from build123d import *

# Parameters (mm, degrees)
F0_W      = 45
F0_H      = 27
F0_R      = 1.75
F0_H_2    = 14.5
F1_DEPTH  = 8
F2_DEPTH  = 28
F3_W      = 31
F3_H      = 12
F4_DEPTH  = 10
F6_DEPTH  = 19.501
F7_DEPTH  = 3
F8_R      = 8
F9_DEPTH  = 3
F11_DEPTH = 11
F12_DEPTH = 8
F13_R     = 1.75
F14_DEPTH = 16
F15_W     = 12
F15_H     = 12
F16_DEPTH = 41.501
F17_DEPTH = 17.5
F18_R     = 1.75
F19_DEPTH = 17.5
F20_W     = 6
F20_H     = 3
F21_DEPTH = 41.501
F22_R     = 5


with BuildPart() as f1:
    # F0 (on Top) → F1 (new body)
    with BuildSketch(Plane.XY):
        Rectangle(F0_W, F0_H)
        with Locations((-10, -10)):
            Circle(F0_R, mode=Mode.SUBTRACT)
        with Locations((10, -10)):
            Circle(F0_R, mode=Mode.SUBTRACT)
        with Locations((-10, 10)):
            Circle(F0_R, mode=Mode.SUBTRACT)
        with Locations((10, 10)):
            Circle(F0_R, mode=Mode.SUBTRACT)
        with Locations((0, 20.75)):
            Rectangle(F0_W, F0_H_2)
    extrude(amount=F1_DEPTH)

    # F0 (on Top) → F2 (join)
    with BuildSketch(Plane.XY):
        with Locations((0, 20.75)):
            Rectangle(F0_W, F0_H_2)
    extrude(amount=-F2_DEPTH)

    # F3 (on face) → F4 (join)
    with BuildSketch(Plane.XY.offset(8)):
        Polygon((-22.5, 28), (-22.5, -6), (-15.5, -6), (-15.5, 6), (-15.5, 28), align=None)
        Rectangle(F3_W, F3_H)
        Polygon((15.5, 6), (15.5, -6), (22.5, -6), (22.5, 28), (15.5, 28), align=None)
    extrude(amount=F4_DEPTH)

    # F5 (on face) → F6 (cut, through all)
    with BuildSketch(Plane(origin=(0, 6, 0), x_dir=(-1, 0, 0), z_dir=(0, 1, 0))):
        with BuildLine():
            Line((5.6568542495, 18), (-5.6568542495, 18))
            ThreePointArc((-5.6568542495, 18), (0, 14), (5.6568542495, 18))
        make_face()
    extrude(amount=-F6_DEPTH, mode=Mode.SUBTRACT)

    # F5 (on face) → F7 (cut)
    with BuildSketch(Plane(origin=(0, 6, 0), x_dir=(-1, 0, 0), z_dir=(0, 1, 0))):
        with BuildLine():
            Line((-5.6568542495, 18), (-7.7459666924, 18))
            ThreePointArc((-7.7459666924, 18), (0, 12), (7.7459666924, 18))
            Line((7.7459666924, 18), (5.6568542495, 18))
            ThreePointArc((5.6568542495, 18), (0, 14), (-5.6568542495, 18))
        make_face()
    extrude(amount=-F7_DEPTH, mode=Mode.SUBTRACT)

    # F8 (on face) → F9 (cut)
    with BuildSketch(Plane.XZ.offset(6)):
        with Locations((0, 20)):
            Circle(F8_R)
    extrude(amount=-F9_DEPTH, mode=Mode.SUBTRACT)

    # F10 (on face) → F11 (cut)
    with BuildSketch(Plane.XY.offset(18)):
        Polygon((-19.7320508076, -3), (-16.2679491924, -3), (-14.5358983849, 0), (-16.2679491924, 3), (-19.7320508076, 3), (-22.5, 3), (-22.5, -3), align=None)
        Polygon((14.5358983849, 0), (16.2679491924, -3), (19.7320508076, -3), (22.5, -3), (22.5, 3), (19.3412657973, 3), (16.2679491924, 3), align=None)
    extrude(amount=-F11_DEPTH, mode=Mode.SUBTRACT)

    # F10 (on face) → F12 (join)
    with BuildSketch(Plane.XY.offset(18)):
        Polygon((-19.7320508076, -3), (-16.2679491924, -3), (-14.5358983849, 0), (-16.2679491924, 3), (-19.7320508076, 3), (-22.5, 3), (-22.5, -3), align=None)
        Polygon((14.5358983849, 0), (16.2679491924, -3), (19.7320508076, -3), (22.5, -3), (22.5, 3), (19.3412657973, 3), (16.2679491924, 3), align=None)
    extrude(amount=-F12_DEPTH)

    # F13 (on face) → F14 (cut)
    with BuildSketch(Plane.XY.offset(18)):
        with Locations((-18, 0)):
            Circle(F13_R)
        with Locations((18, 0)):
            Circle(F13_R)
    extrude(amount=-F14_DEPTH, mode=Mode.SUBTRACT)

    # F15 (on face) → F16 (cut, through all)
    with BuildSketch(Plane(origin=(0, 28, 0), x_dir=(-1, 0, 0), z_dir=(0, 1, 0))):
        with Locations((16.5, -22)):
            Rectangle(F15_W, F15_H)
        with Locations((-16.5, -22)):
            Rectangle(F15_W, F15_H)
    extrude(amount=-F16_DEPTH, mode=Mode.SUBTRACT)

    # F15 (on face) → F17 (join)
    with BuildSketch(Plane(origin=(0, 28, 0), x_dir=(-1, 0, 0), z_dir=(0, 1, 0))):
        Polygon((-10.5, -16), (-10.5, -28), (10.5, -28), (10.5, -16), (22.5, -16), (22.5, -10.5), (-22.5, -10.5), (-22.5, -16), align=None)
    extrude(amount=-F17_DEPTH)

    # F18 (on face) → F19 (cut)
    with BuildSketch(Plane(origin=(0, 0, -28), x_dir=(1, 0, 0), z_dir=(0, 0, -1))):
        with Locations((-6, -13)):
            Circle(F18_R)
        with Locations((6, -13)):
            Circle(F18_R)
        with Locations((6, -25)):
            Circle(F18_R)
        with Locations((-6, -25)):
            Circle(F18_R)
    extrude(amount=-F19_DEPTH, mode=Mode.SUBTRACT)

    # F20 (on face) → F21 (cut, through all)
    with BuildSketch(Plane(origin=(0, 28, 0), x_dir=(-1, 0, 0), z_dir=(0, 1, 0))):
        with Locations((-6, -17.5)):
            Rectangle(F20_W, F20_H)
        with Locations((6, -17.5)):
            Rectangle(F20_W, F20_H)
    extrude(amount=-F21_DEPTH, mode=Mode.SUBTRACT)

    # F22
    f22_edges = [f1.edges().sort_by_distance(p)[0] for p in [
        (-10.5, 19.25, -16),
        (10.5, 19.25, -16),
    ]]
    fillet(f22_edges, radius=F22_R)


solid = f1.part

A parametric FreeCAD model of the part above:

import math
import FreeCAD as App
import Part
import Sketcher

V = App.Vector
Q = App.Units.Quantity


def edges_at(feature, points):
    """Names of the edges that pass closest to the given points."""
    edges = feature.Shape.Edges
    near = lambda p: min(range(len(edges)), key=lambda i: edges[i].distToShape(Part.Vertex(*p))[0])
    return sorted({f"Edge{near(p) + 1}" for p in points})


def add_polygon(sketch, points):
    """Adds a closed chain of lines whose ends are joined by coincident constraints."""
    first, n = sketch.GeometryCount, len(points)
    for a, b in zip(points, points[1:] + points[:1]):
        sketch.addGeometry(Part.LineSegment(App.Vector(*a, 0), App.Vector(*b, 0)), False)
    for i in range(n):
        sketch.addConstraint(Sketcher.Constraint("Coincident", first + i, 2, first + (i + 1) % n, 1))

doc = App.newDocument("Part")
params = doc.addObject("Spreadsheet::Sheet", "Params")
for row, (alias, value) in enumerate([
    ("sketch1_diameter", "3.5 mm"),
    ("sketch1_width", "45 mm"),
    ("sketch1_height", "41.5 mm"),
    ("pad1_length", "8 mm"),
    ("sketch2_width", "45 mm"),
    ("sketch2_height", "14.5 mm"),
    ("pad2_length", "28 mm"),
    ("sketch3_width", "45 mm"),
    ("sketch3_width2", "7 mm"),
    ("sketch3_height", "34 mm"),
    ("sketch3_height2", "22 mm"),
    ("pad3_length", "10 mm"),
    ("sketch4_radius", "6 mm"),
    ("sketch5_radius", "8 mm"),
    ("sketch5_radius2", "6 mm"),
    ("pocket2_length", "3 mm"),
    ("sketch6_diameter", "16 mm"),
    ("pocket3_length", "3 mm"),
    ("sketch7_height", "6 mm"),
    ("pocket4_length", "11 mm"),
    ("sketch8_height", "6 mm"),
    ("pad4_length", "8 mm"),
    ("sketch9_diameter", "3.5 mm"),
    ("pocket5_length", "16 mm"),
    ("sketch10_width", "12 mm"),
    ("sketch11_width", "21 mm"),
    ("sketch11_width2", "12 mm"),
    ("sketch11_height", "5.5 mm"),
    ("pad5_length", "17.5 mm"),
    ("sketch12_diameter", "3.5 mm"),
    ("pocket7_length", "17.5 mm"),
    ("sketch13_width", "6 mm"),
    ("sketch13_height", "3 mm"),
    ("fillet_radius", "5 mm"),
], start=1):
    params.set(f"A{row}", alias)
    params.set(f"B{row}", "=" + value)
    params.setAlias(f"B{row}", alias)

body = doc.addObject("PartDesign::Body", "Body")

sketch1 = doc.addObject("Sketcher::SketchObject", "Sketch")
body.addObject(sketch1)
sketch1.AttachmentSupport = (doc.XY_Plane, [""])
sketch1.MapMode = "FlatFace"
add_polygon(sketch1, [(-22.5, -13.5), (22.5, -13.5), (22.5, 28), (-22.5, 28)])
sketch1.addGeometry(Part.Circle(V(-10, -10, 0), V(0, 0, 1), 1.8), False)
sketch1.addGeometry(Part.Circle(V(10, -10, 0), V(0, 0, 1), 1.8), False)
sketch1.addGeometry(Part.Circle(V(-10, 10, 0), V(0, 0, 1), 1.8), False)
sketch1.addGeometry(Part.Circle(V(10, 10, 0), V(0, 0, 1), 1.8), False)
sketch1.addConstraint([
    Sketcher.Constraint("Horizontal", 0),
    Sketcher.Constraint("Vertical", 1),
    Sketcher.Constraint("Horizontal", 2),
    Sketcher.Constraint("Vertical", 3),
    Sketcher.Constraint("Equal", 4, 5),
    Sketcher.Constraint("Equal", 5, 6),
    Sketcher.Constraint("Equal", 6, 7),
    Sketcher.Constraint("Symmetric", 5, 3, 6, 3, -1, 1),
    Sketcher.Constraint("Symmetric", 4, 3, 7, 3, -1, 1),
    Sketcher.Constraint("Symmetric", 4, 3, 5, 3, -2),
    Sketcher.Constraint("Diameter", 4, 3.5),
    Sketcher.Constraint("DistanceX", 0, 1, 0, 2, 45.0),
    Sketcher.Constraint("DistanceY", 1, 1, 1, 2, 41.5),
    Sketcher.Constraint("DistanceX", 4, 3, -1, 1, 10.0),
    Sketcher.Constraint("DistanceY", 4, 3, -1, 1, 10.0),
    Sketcher.Constraint("DistanceY", -1, 1, 1, 2, 28.0),
    Sketcher.Constraint("DistanceX", -1, 1, 0, 2, 22.5),
])
sketch1.setExpression("Constraints[14]", "Params.sketch1_diameter")
sketch1.setExpression("Constraints[15]", "Params.sketch1_width")
sketch1.setExpression("Constraints[16]", "Params.sketch1_height")
pad1 = doc.addObject("PartDesign::Pad", "Pad")
body.addObject(pad1)
pad1.Profile = sketch1
pad1.setExpression("Length", "Params.pad1_length")

sketch2 = doc.addObject("Sketcher::SketchObject", "Sketch001")
body.addObject(sketch2)
sketch2.AttachmentSupport = (doc.XY_Plane, [""])
sketch2.MapMode = "FlatFace"
add_polygon(sketch2, [(-22, 28), (-22, 14), (22, 14), (22, 28)])
sketch2.addConstraint([
    Sketcher.Constraint("Vertical", 0),
    Sketcher.Constraint("Horizontal", 1),
    Sketcher.Constraint("Vertical", 2),
    Sketcher.Constraint("Horizontal", 3),
    Sketcher.Constraint("DistanceX", 1, 1, 1, 2, 45.0),
    Sketcher.Constraint("DistanceY", 0, 2, 0, 1, 14.5),
    Sketcher.Constraint("DistanceY", -1, 1, 2, 2, 28.0),
    Sketcher.Constraint("DistanceX", 0, 2, -1, 1, 22.5),
])
sketch2.setExpression("Constraints[8]", "Params.sketch2_width")
sketch2.setExpression("Constraints[9]", "Params.sketch2_height")
pad2 = doc.addObject("PartDesign::Pad", "Pad001")
body.addObject(pad2)
pad2.Profile = sketch2
pad2.setExpression("Length", "Params.pad2_length")
pad2.Reversed = True

sketch3 = doc.addObject("Sketcher::SketchObject", "Sketch002")
body.addObject(sketch3)
sketch3.AttachmentSupport = (doc.XY_Plane, [""])
sketch3.MapMode = "FlatFace"
sketch3.AttachmentOffset = App.Placement(V(0, 0, 8), App.Rotation())
add_polygon(sketch3, [(-22, 28), (-22, -6), (22, -6), (22, 28), (16, 28), (16, 6), (-16, 6), (-16, 28)])
sketch3.addConstraint([
    Sketcher.Constraint("Vertical", 0),
    Sketcher.Constraint("Horizontal", 1),
    Sketcher.Constraint("Vertical", 2),
    Sketcher.Constraint("Horizontal", 3),
    Sketcher.Constraint("Vertical", 4),
    Sketcher.Constraint("Horizontal", 5),
    Sketcher.Constraint("Vertical", 6),
    Sketcher.Constraint("Horizontal", 7),
    Sketcher.Constraint("Symmetric", 3, 2, 6, 2, -2),
    Sketcher.Constraint("Equal", 3, 7),
    Sketcher.Constraint("DistanceX", 1, 1, 1, 2, 45.0),
    Sketcher.Constraint("DistanceX", 3, 2, 3, 1, 7.0),
    Sketcher.Constraint("DistanceY", 0, 2, 0, 1, 34.0),
    Sketcher.Constraint("DistanceY", 4, 2, 4, 1, 22.0),
    Sketcher.Constraint("DistanceY", 0, 2, -1, 1, 6.0),
])
sketch3.setExpression("Constraints[18]", "Params.sketch3_width")
sketch3.setExpression("Constraints[19]", "Params.sketch3_width2")
sketch3.setExpression("Constraints[20]", "Params.sketch3_height")
sketch3.setExpression("Constraints[21]", "Params.sketch3_height2")
pad3 = doc.addObject("PartDesign::Pad", "Pad002")
body.addObject(pad3)
pad3.Profile = sketch3
pad3.setExpression("Length", "Params.pad3_length")

sketch4 = doc.addObject("Sketcher::SketchObject", "Sketch003")
body.addObject(sketch4)
sketch4.AttachmentSupport = (doc.XZ_Plane, [""])
sketch4.MapMode = "FlatFace"
sketch4.AttachmentOffset = App.Placement(V(0, 0, -6), App.Rotation())
sketch4.addGeometry([
    Part.LineSegment(V(-6, 18, 0), V(6, 18, 0)),
    Part.ArcOfCircle(Part.Circle(V(0, 20, 0), V(0, 0, 1), 6), math.radians(-161), math.radians(-19)),
], False)
sketch4.addConstraint([
    Sketcher.Constraint("Coincident", 0, 1, 1, 1),
    Sketcher.Constraint("Coincident", 1, 2, 0, 2),
    Sketcher.Constraint("Horizontal", 0),
    Sketcher.Constraint("PointOnObject", 1, 3, -2),
    Sketcher.Constraint("Radius", 1, 6.0),
    Sketcher.Constraint("DistanceY", -1, 1, 1, 3, 20.0),
    Sketcher.Constraint("DistanceY", -1, 1, 0, 1, 18.0),
])
sketch4.setExpression("Constraints[4]", "Params.sketch4_radius")
pocket1 = doc.addObject("PartDesign::Pocket", "Pocket")
body.addObject(pocket1)
pocket1.Profile = sketch4
pocket1.Type = "ThroughAll"
pocket1.Reversed = True

sketch5 = doc.addObject("Sketcher::SketchObject", "Sketch004")
body.addObject(sketch5)
sketch5.AttachmentSupport = (doc.XZ_Plane, [""])
sketch5.MapMode = "FlatFace"
sketch5.AttachmentOffset = App.Placement(V(0, 0, -6), App.Rotation())
sketch5.addGeometry([
    Part.LineSegment(V(5.7, 18, 0), V(7.7, 18, 0)),
    Part.ArcOfCircle(Part.Circle(V(0, 20, 0), V(0, 0, 1), 8), math.radians(-166), math.radians(-14)),
    Part.LineSegment(V(-7.7, 18, 0), V(-5.7, 18, 0)),
    Part.ArcOfCircle(Part.Circle(V(0, 20, 0), V(0, 0, 1), 6), math.radians(-161), math.radians(-19)),
], False)
sketch5.addConstraint([
    Sketcher.Constraint("Coincident", 0, 2, 1, 2),
    Sketcher.Constraint("Coincident", 1, 1, 2, 1),
    Sketcher.Constraint("Coincident", 2, 2, 3, 1),
    Sketcher.Constraint("Coincident", 3, 2, 0, 1),
    Sketcher.Constraint("Horizontal", 0),
    Sketcher.Constraint("Horizontal", 2),
    Sketcher.Constraint("Coincident", 3, 3, 1, 3),
    Sketcher.Constraint("Symmetric", 0, 2, 1, 1, -2),
    Sketcher.Constraint("Radius", 1, 8.0),
    Sketcher.Constraint("Radius", 3, 6.0),
    Sketcher.Constraint("DistanceY", -1, 1, 1, 3, 20.0),
    Sketcher.Constraint("DistanceY", -1, 1, 0, 2, 18.0),
])
sketch5.setExpression("Constraints[8]", "Params.sketch5_radius")
sketch5.setExpression("Constraints[9]", "Params.sketch5_radius2")
pocket2 = doc.addObject("PartDesign::Pocket", "Pocket001")
body.addObject(pocket2)
pocket2.Profile = sketch5
pocket2.setExpression("Length", "Params.pocket2_length")
pocket2.Reversed = True

sketch6 = doc.addObject("Sketcher::SketchObject", "Sketch005")
body.addObject(sketch6)
sketch6.AttachmentSupport = (doc.XZ_Plane, [""])
sketch6.MapMode = "FlatFace"
sketch6.AttachmentOffset = App.Placement(V(0, 0, 6), App.Rotation())
sketch6.addGeometry(Part.Circle(V(0, 20, 0), V(0, 0, 1), 8), False)
sketch6.addConstraint([
    Sketcher.Constraint("PointOnObject", 0, 3, -2),
    Sketcher.Constraint("Diameter", 0, 16.0),
    Sketcher.Constraint("DistanceY", -1, 1, 0, 3, 20.0),
])
sketch6.setExpression("Constraints[1]", "Params.sketch6_diameter")
pocket3 = doc.addObject("PartDesign::Pocket", "Pocket002")
body.addObject(pocket3)
pocket3.Profile = sketch6
pocket3.setExpression("Length", "Params.pocket3_length")

sketch7 = doc.addObject("Sketcher::SketchObject", "Sketch006")
body.addObject(sketch7)
sketch7.AttachmentSupport = (doc.XY_Plane, [""])
sketch7.MapMode = "FlatFace"
sketch7.AttachmentOffset = App.Placement(V(0, 0, 18), App.Rotation())
add_polygon(sketch7, [(-16.3, -3), (-14.5, 0), (-16.3, 3), (-22.5, 3), (-22.5, -3)])
add_polygon(sketch7, [(14.5, 0), (16.3, -3), (22.5, -3), (22.5, 3), (16.3, 3)])
sketch7.addConstraint([
    Sketcher.Constraint("Horizontal", 2),
    Sketcher.Constraint("Vertical", 3),
    Sketcher.Constraint("Horizontal", 4),
    Sketcher.Constraint("Horizontal", 6),
    Sketcher.Constraint("Vertical", 7),
    Sketcher.Constraint("Horizontal", 8),
    Sketcher.Constraint("Symmetric", 1, 2, 5, 2, -1, 1),
    Sketcher.Constraint("Symmetric", 3, 2, 7, 2, -1, 1),
    Sketcher.Constraint("Symmetric", 0, 2, 9, 2, -1, 1),
    Sketcher.Constraint("Symmetric", 4, 2, 5, 2, -2),
    Sketcher.Constraint("PointOnObject", 0, 2, -1),
    Sketcher.Constraint("Parallel", 0, 9),
    Sketcher.Constraint("DistanceY", 3, 2, 3, 1, 6.0),
    Sketcher.Constraint("Angle", 0, Q("60 deg")),
    Sketcher.Constraint("DistanceX", 3, 2, 6, 2, 45.0),
    Sketcher.Constraint("DistanceX", 2, 2, 2, 1, 6.232051),
])
sketch7.setExpression("Constraints[22]", "Params.sketch7_height")
pocket4 = doc.addObject("PartDesign::Pocket", "Pocket003")
body.addObject(pocket4)
pocket4.Profile = sketch7
pocket4.setExpression("Length", "Params.pocket4_length")

sketch8 = doc.addObject("Sketcher::SketchObject", "Sketch007")
body.addObject(sketch8)
sketch8.AttachmentSupport = (doc.XY_Plane, [""])
sketch8.MapMode = "FlatFace"
sketch8.AttachmentOffset = App.Placement(V(0, 0, 18), App.Rotation())
add_polygon(sketch8, [(-16.3, -3), (-14.5, 0), (-16.3, 3), (-22.5, 3), (-22.5, -3)])
add_polygon(sketch8, [(14.5, 0), (16.3, -3), (22.5, -3), (22.5, 3), (16.3, 3)])
sketch8.addConstraint([
    Sketcher.Constraint("Horizontal", 2),
    Sketcher.Constraint("Vertical", 3),
    Sketcher.Constraint("Horizontal", 4),
    Sketcher.Constraint("Horizontal", 6),
    Sketcher.Constraint("Vertical", 7),
    Sketcher.Constraint("Horizontal", 8),
    Sketcher.Constraint("Symmetric", 1, 2, 5, 2, -1, 1),
    Sketcher.Constraint("Symmetric", 3, 2, 7, 2, -1, 1),
    Sketcher.Constraint("Symmetric", 0, 2, 9, 2, -1, 1),
    Sketcher.Constraint("Symmetric", 4, 2, 5, 2, -2),
    Sketcher.Constraint("PointOnObject", 0, 2, -1),
    Sketcher.Constraint("Parallel", 0, 9),
    Sketcher.Constraint("DistanceY", 3, 2, 3, 1, 6.0),
    Sketcher.Constraint("Angle", 0, Q("60 deg")),
    Sketcher.Constraint("DistanceX", 3, 2, 6, 2, 45.0),
    Sketcher.Constraint("DistanceX", 2, 2, 2, 1, 6.232051),
])
sketch8.setExpression("Constraints[22]", "Params.sketch8_height")
pad4 = doc.addObject("PartDesign::Pad", "Pad003")
body.addObject(pad4)
pad4.Profile = sketch8
pad4.setExpression("Length", "Params.pad4_length")
pad4.Reversed = True

sketch9 = doc.addObject("Sketcher::SketchObject", "Sketch008")
body.addObject(sketch9)
sketch9.AttachmentSupport = (doc.XY_Plane, [""])
sketch9.MapMode = "FlatFace"
sketch9.AttachmentOffset = App.Placement(V(0, 0, 18), App.Rotation())
sketch9.addGeometry([
    Part.Circle(V(-18, 0, 0), V(0, 0, 1), 1.8),
    Part.Circle(V(18, 0, 0), V(0, 0, 1), 1.8),
], False)
sketch9.addConstraint([
    Sketcher.Constraint("Equal", 0, 1),
    Sketcher.Constraint("Symmetric", 0, 3, 1, 3, -1, 1),
    Sketcher.Constraint("PointOnObject", 0, 3, -1),
    Sketcher.Constraint("Diameter", 0, 3.5),
    Sketcher.Constraint("DistanceX", 0, 3, -1, 1, 18.0),
])
sketch9.setExpression("Constraints[3]", "Params.sketch9_diameter")
pocket5 = doc.addObject("PartDesign::Pocket", "Pocket004")
body.addObject(pocket5)
pocket5.Profile = sketch9
pocket5.setExpression("Length", "Params.pocket5_length")

sketch10 = doc.addObject("Sketcher::SketchObject", "Sketch009")
body.addObject(sketch10)
sketch10.AttachmentSupport = (doc.XZ_Plane, [""])
sketch10.MapMode = "FlatFace"
sketch10.AttachmentOffset = App.Placement(V(0, 0, -28), App.Rotation())
add_polygon(sketch10, [(-10, -16), (-10, -28), (-22, -28), (-22, -16)])
add_polygon(sketch10, [(22, -16), (22, -28), (10, -28), (10, -16)])
sketch10.addConstraint([
    Sketcher.Constraint("Vertical", 0),
    Sketcher.Constraint("Horizontal", 1),
    Sketcher.Constraint("Vertical", 2),
    Sketcher.Constraint("Horizontal", 3),
    Sketcher.Constraint("Vertical", 4),
    Sketcher.Constraint("Horizontal", 5),
    Sketcher.Constraint("Vertical", 6),
    Sketcher.Constraint("Horizontal", 7),
    Sketcher.Constraint("Symmetric", 1, 2, 4, 2, -2),
    Sketcher.Constraint("Symmetric", 3, 2, 6, 2, -2),
    Sketcher.Constraint("Equal", 7, 0),
    Sketcher.Constraint("DistanceX", 1, 2, 1, 1, 12.0),
    Sketcher.Constraint("DistanceY", 0, 2, -1, 1, 28.0),
    Sketcher.Constraint("DistanceX", 0, 2, 4, 2, 33.0),
])
sketch10.setExpression("Constraints[19]", "Params.sketch10_width")
pocket6 = doc.addObject("PartDesign::Pocket", "Pocket005")
body.addObject(pocket6)
pocket6.Profile = sketch10
pocket6.Type = "ThroughAll"
pocket6.Reversed = True

sketch11 = doc.addObject("Sketcher::SketchObject", "Sketch010")
body.addObject(sketch11)
sketch11.AttachmentSupport = (doc.XZ_Plane, [""])
sketch11.MapMode = "FlatFace"
sketch11.AttachmentOffset = App.Placement(V(0, 0, -28), App.Rotation())
add_polygon(sketch11, [(10, -16), (10, -28), (-10, -28), (-10, -16), (-22, -16), (-22, -10), (22, -10), (22, -16)])
sketch11.addConstraint([
    Sketcher.Constraint("Vertical", 0),
    Sketcher.Constraint("Horizontal", 1),
    Sketcher.Constraint("Vertical", 2),
    Sketcher.Constraint("Horizontal", 3),
    Sketcher.Constraint("Vertical", 4),
    Sketcher.Constraint("Horizontal", 5),
    Sketcher.Constraint("Vertical", 6),
    Sketcher.Constraint("Horizontal", 7),
    Sketcher.Constraint("Symmetric", 3, 2, 6, 2, -2),
    Sketcher.Constraint("Equal", 3, 7),
    Sketcher.Constraint("Equal", 7, 0),
    Sketcher.Constraint("DistanceX", 1, 2, 1, 1, 21.0),
    Sketcher.Constraint("DistanceX", 3, 2, 3, 1, 12.0),
    Sketcher.Constraint("DistanceY", 4, 1, 4, 2, 5.5),
    Sketcher.Constraint("DistanceY", 0, 2, -1, 1, 28.0),
])
sketch11.setExpression("Constraints[19]", "Params.sketch11_width")
sketch11.setExpression("Constraints[20]", "Params.sketch11_width2")
sketch11.setExpression("Constraints[21]", "Params.sketch11_height")
pad5 = doc.addObject("PartDesign::Pad", "Pad004")
body.addObject(pad5)
pad5.Profile = sketch11
pad5.setExpression("Length", "Params.pad5_length")

sketch12 = doc.addObject("Sketcher::SketchObject", "Sketch011")
body.addObject(sketch12)
sketch12.AttachmentSupport = (doc.XY_Plane, [""])
sketch12.MapMode = "FlatFace"
sketch12.AttachmentOffset = App.Placement(V(0, 0, -28), App.Rotation())
sketch12.addGeometry([
    Part.Circle(V(-6, 13, 0), V(0, 0, 1), 1.8),
    Part.Circle(V(6, 13, 0), V(0, 0, 1), 1.8),
    Part.Circle(V(6, 25, 0), V(0, 0, 1), 1.8),
    Part.Circle(V(-6, 25, 0), V(0, 0, 1), 1.8),
], False)
sketch12.addConstraint([
    Sketcher.Constraint("Equal", 0, 1),
    Sketcher.Constraint("Equal", 1, 2),
    Sketcher.Constraint("Equal", 2, 3),
    Sketcher.Constraint("Symmetric", 0, 3, 1, 3, -2),
    Sketcher.Constraint("Symmetric", 2, 3, 3, 3, -2),
    Sketcher.Constraint("Vertical", 1, 3, 2, 3),
    Sketcher.Constraint("Diameter", 0, 3.5),
    Sketcher.Constraint("DistanceX", 0, 3, -1, 1, 6.0),
    Sketcher.Constraint("DistanceY", -1, 1, 0, 3, 13.0),
    Sketcher.Constraint("DistanceY", -1, 1, 2, 3, 25.0),
])
sketch12.setExpression("Constraints[6]", "Params.sketch12_diameter")
pocket7 = doc.addObject("PartDesign::Pocket", "Pocket006")
body.addObject(pocket7)
pocket7.Profile = sketch12
pocket7.setExpression("Length", "Params.pocket7_length")
pocket7.Reversed = True

sketch13 = doc.addObject("Sketcher::SketchObject", "Sketch012")
body.addObject(sketch13)
sketch13.AttachmentSupport = (doc.XZ_Plane, [""])
sketch13.MapMode = "FlatFace"
sketch13.AttachmentOffset = App.Placement(V(0, 0, -28), App.Rotation())
add_polygon(sketch13, [(9, -16), (9, -19), (3, -19), (3, -16)])
add_polygon(sketch13, [(-3, -16), (-3, -19), (-9, -19), (-9, -16)])
sketch13.addConstraint([
    Sketcher.Constraint("Vertical", 0),
    Sketcher.Constraint("Horizontal", 1),
    Sketcher.Constraint("Vertical", 2),
    Sketcher.Constraint("Horizontal", 3),
    Sketcher.Constraint("Vertical", 4),
    Sketcher.Constraint("Horizontal", 5),
    Sketcher.Constraint("Vertical", 6),
    Sketcher.Constraint("Horizontal", 7),
    Sketcher.Constraint("Symmetric", 1, 2, 4, 2, -2),
    Sketcher.Constraint("Symmetric", 3, 2, 6, 2, -2),
    Sketcher.Constraint("DistanceX", 1, 2, 1, 1, 6.0),
    Sketcher.Constraint("DistanceY", 0, 2, 0, 1, 3.0),
    Sketcher.Constraint("DistanceX", -1, 1, 0, 2, 9.0),
    Sketcher.Constraint("DistanceY", 0, 2, -1, 1, 19.0),
])
sketch13.setExpression("Constraints[18]", "Params.sketch13_width")
sketch13.setExpression("Constraints[19]", "Params.sketch13_height")
pocket8 = doc.addObject("PartDesign::Pocket", "Pocket007")
body.addObject(pocket8)
pocket8.Profile = sketch13
pocket8.Type = "ThroughAll"
pocket8.Reversed = True
doc.recompute()

fillet = doc.addObject("PartDesign::Fillet", "Fillet")
body.addObject(fillet)
fillet.Base = (pocket8, edges_at(pocket8, [(-10.5, 19.25, -16), (10.5, 19.25, -16)]))
fillet.setExpression("Radius", "Params.fillet_radius")

doc.recompute()
